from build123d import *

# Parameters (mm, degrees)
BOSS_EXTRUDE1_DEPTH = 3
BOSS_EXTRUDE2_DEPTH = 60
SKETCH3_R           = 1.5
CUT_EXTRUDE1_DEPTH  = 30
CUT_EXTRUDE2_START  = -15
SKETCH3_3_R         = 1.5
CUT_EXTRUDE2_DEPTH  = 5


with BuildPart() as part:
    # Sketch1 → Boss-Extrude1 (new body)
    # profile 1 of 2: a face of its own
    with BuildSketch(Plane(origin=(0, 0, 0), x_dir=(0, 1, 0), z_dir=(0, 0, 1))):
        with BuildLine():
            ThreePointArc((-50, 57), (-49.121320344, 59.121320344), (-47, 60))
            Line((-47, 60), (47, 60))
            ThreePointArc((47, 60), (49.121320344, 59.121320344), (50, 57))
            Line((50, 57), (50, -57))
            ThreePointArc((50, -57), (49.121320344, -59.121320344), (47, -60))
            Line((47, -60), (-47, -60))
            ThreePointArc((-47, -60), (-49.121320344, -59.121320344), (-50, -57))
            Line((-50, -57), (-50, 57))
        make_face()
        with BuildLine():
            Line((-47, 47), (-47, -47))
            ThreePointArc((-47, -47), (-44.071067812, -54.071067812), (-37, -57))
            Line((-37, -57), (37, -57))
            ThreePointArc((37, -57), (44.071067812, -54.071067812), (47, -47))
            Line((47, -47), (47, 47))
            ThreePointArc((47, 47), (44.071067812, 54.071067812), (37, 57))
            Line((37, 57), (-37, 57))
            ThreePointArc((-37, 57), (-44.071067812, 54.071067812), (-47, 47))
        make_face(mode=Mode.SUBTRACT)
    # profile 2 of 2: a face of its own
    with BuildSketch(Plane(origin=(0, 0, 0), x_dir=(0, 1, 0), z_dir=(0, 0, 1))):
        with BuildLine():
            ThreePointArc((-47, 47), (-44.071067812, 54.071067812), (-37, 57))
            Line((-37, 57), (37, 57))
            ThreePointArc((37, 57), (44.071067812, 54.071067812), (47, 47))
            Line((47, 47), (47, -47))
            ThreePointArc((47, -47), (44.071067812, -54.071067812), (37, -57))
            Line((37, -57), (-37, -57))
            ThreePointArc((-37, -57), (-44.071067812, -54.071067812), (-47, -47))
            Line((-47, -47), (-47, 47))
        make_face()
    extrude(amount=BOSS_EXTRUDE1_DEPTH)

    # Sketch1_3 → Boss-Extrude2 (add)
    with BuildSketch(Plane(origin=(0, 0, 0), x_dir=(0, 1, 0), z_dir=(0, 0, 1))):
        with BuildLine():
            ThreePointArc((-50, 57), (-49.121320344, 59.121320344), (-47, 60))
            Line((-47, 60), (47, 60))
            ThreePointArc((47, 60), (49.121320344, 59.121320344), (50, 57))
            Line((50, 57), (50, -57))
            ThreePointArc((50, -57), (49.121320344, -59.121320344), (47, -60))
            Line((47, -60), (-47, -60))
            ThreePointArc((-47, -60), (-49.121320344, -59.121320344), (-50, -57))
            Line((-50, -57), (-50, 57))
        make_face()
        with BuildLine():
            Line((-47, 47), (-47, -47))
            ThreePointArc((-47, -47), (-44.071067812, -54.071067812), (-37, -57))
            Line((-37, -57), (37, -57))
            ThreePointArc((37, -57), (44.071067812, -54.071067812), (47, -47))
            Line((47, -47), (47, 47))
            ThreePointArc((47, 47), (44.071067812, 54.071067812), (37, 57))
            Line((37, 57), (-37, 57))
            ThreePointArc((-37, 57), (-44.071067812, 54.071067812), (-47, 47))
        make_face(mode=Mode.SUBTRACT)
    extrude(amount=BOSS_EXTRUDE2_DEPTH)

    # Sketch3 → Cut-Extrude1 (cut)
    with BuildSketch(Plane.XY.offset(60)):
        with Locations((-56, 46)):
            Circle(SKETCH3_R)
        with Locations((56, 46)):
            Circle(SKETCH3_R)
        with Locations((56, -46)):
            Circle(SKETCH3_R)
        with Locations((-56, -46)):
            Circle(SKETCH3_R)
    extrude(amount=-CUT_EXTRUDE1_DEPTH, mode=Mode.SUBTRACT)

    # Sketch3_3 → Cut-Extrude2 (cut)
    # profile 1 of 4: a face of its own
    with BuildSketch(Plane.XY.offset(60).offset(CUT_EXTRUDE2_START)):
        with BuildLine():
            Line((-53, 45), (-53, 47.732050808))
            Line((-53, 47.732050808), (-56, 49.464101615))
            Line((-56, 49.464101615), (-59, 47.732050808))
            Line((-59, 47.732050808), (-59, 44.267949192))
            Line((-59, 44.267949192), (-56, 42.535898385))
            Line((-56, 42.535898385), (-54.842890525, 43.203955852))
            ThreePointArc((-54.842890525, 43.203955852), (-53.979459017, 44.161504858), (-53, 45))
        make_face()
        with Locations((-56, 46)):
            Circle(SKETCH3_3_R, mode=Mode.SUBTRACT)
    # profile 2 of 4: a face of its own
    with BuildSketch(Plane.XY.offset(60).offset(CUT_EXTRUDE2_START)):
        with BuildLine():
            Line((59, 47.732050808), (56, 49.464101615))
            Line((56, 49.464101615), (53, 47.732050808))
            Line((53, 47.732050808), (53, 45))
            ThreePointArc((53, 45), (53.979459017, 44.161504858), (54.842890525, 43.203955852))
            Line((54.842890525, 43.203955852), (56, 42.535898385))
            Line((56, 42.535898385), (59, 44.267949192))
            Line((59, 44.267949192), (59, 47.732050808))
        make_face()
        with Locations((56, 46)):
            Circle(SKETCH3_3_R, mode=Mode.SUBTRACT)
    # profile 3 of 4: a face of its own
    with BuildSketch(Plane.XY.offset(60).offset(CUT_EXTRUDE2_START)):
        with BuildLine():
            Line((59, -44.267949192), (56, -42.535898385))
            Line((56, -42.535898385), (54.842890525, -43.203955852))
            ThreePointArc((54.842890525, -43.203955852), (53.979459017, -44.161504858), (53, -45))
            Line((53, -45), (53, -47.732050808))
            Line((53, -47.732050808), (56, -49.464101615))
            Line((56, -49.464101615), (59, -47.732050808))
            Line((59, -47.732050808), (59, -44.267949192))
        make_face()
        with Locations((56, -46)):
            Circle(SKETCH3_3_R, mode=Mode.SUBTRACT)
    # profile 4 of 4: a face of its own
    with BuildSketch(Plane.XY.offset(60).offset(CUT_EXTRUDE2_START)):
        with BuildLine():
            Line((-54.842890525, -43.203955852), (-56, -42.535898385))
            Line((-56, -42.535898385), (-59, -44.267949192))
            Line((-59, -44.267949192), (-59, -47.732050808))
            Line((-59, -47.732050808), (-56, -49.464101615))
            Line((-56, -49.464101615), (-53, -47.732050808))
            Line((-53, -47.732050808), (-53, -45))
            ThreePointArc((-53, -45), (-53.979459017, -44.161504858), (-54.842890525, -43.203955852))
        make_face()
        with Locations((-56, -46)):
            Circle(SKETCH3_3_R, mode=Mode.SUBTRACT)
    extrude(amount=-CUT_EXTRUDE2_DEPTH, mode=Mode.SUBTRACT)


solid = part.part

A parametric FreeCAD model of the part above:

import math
import FreeCAD as App
import Part
import Sketcher
from FreeCAD import Vector
Q = App.Units.Quantity

doc = App.newDocument("Part")
params = doc.addObject("Spreadsheet::Sheet", "Params")
for row, (alias, value) in enumerate([
    ("sketch1_radius", "3 mm"),
    ("sketch1_width", "114 mm"),
    ("sketch1_height", "94 mm"),
    ("pad1_length", "3 mm"),
    ("sketch2_radius", "3 mm"),
    ("sketch2_radius2", "10 mm"),
    ("sketch2_width", "114 mm"),
    ("pad2_length", "60 mm"),
    ("sketch3_diameter", "3 mm"),
    ("pocket1_length", "30 mm"),
    ("sketch4_diameter", "3 mm"),
    ("sketch4_radius", "10 mm"),
    ("pocket2_length", "5 mm"),
], start=1):
    params.set(f"A{row}", alias)
    params.set(f"B{row}", "=" + value)
    params.setAlias(f"B{row}", alias)

body = doc.addObject("PartDesign::Body", "Body")

sketch1 = body.newObject("Sketcher::SketchObject", "Sketch")
sketch1.AttachmentSupport = (doc.getObject("XY_Plane"), [""])
sketch1.MapMode = "FlatFace"
sketch1.addGeometry(Part.ArcOfCircle(Part.Circle(Vector(-57, -47, 0), Vector(0, 0, 1), 3), math.radians(180), math.radians(270)), False)
sketch1.addGeometry(Part.LineSegment(Vector(-57, -50, 0), Vector(57, -50, 0)), False)
sketch1.addGeometry(Part.ArcOfCircle(Part.Circle(Vector(57, -47, 0), Vector(0, 0, 1), 3), math.radians(-90), math.radians(0)), False)
sketch1.addGeometry(Part.LineSegment(Vector(60, -47, 0), Vector(60, 47, 0)), False)
sketch1.addGeometry(Part.ArcOfCircle(Part.Circle(Vector(57, 47, 0), Vector(0, 0, 1), 3), math.radians(0), math.radians(90)), False)
sketch1.addGeometry(Part.LineSegment(Vector(57, 50, 0), Vector(-57, 50, 0)), False)
sketch1.addGeometry(Part.ArcOfCircle(Part.Circle(Vector(-57, 47, 0), Vector(0, 0, 1), 3), math.radians(90), math.radians(180)), False)
sketch1.addGeometry(Part.LineSegment(Vector(-60, 47, 0), Vector(-60, -47, 0)), False)
sketch1.addConstraint(Sketcher.Constraint("Tangent", 0, 2, 1, 1))
sketch1.addConstraint(Sketcher.Constraint("Tangent", 1, 2, 2, 1))
sketch1.addConstraint(Sketcher.Constraint("Tangent", 2, 2, 3, 1))
sketch1.addConstraint(Sketcher.Constraint("Tangent", 3, 2, 4, 1))
sketch1.addConstraint(Sketcher.Constraint("Tangent", 4, 2, 5, 1))
sketch1.addConstraint(Sketcher.Constraint("Tangent", 5, 2, 6, 1))
sketch1.addConstraint(Sketcher.Constraint("Tangent", 6, 2, 7, 1))
sketch1.addConstraint(Sketcher.Constraint("Tangent", 7, 2, 0, 1))
sketch1.addConstraint(Sketcher.Constraint("Horizontal", 1))
sketch1.addConstraint(Sketcher.Constraint("Vertical", 3))
sketch1.addConstraint(Sketcher.Constraint("Horizontal", 5))
sketch1.addConstraint(Sketcher.Constraint("Vertical", 7))
sketch1.addConstraint(Sketcher.Constraint("Equal", 0, 2))
sketch1.addConstraint(Sketcher.Constraint("Equal", 2, 4))
sketch1.addConstraint(Sketcher.Constraint("Equal", 4, 6))
sketch1.addConstraint(Sketcher.Constraint("Symmetric", 0, 3, 4, 3, -1, 1))
sketch1.addConstraint(Sketcher.Constraint("Radius", 0, Q("3 mm")))
sketch1.addConstraint(Sketcher.Constraint("DistanceX", 1, 1, 1, 2, Q("114 mm")))
sketch1.addConstraint(Sketcher.Constraint("DistanceY", 3, 1, 3, 2, Q("94 mm")))
sketch1.setExpression("Constraints[16]", "Params.sketch1_radius")
sketch1.setExpression("Constraints[17]", "Params.sketch1_width")
sketch1.setExpression("Constraints[18]", "Params.sketch1_height")
pad1 = body.newObject("PartDesign::Pad", "Pad")
pad1.Profile = sketch1
pad1.setExpression("Length", "Params.pad1_length")

sketch2 = body.newObject("Sketcher::SketchObject", "Sketch001")
sketch2.AttachmentSupport = (doc.getObject("XY_Plane"), [""])
sketch2.MapMode = "FlatFace"
sketch2.addGeometry(Part.ArcOfCircle(Part.Circle(Vector(-57, -47, 0), Vector(0, 0, 1), 3), math.radians(180), math.radians(270)), False)
sketch2.addGeometry(Part.LineSegment(Vector(-57, -50, 0), Vector(57, -50, 0)), False)
sketch2.addGeometry(Part.ArcOfCircle(Part.Circle(Vector(57, -47, 0), Vector(0, 0, 1), 3), math.radians(-90), math.radians(0)), False)
sketch2.addGeometry(Part.LineSegment(Vector(60, -47, 0), Vector(60, 47, 0)), False)
sketch2.addGeometry(Part.ArcOfCircle(Part.Circle(Vector(57, 47, 0), Vector(0, 0, 1), 3), math.radians(0), math.radians(90)), False)
sketch2.addGeometry(Part.LineSegment(Vector(57, 50, 0), Vector(-57, 50, 0)), False)
sketch2.addGeometry(Part.ArcOfCircle(Part.Circle(Vector(-57, 47, 0), Vector(0, 0, 1), 3), math.radians(90), math.radians(180)), False)
sketch2.addGeometry(Part.LineSegment(Vector(-60, 47, 0), Vector(-60, -47, 0)), False)
sketch2.addGeometry(Part.ArcOfCircle(Part.Circle(Vector(-47, -37, 0), Vector(0, 0, 1), 10), math.radians(180), math.radians(270)), False)
sketch2.addGeometry(Part.LineSegment(Vector(-57, -37, 0), Vector(-57, 37, 0)), False)
sketch2.addGeometry(Part.ArcOfCircle(Part.Circle(Vector(-47, 37, 0), Vector(0, 0, 1), 10), math.radians(90), math.radians(180)), False)
sketch2.addGeometry(Part.LineSegment(Vector(-47, 47, 0), Vector(47, 47, 0)), False)
sketch2.addGeometry(Part.ArcOfCircle(Part.Circle(Vector(47, 37, 0), Vector(0, 0, 1), 10), math.radians(0), math.radians(90)), False)
sketch2.addGeometry(Part.LineSegment(Vector(57, 37, 0), Vector(57, -37, 0)), False)
sketch2.addGeometry(Part.ArcOfCircle(Part.Circle(Vector(47, -37, 0), Vector(0, 0, 1), 10), math.radians(-90), math.radians(0)), False)
sketch2.addGeometry(Part.LineSegment(Vector(47, -47, 0), Vector(-47, -47, 0)), False)
sketch2.addConstraint(Sketcher.Constraint("Tangent", 0, 2, 1, 1))
sketch2.addConstraint(Sketcher.Constraint("Tangent", 1, 2, 2, 1))
sketch2.addConstraint(Sketcher.Constraint("Tangent", 2, 2, 3, 1))
sketch2.addConstraint(Sketcher.Constraint("Tangent", 3, 2, 4, 1))
sketch2.addConstraint(Sketcher.Constraint("Tangent", 4, 2, 5, 1))
sketch2.addConstraint(Sketcher.Constraint("Tangent", 5, 2, 6, 1))
sketch2.addConstraint(Sketcher.Constraint("Tangent", 6, 2, 7, 1))
sketch2.addConstraint(Sketcher.Constraint("Tangent", 7, 2, 0, 1))
sketch2.addConstraint(Sketcher.Constraint("Tangent", 8, 1, 9, 1))
sketch2.addConstraint(Sketcher.Constraint("Tangent", 9, 2, 10, 2))
sketch2.addConstraint(Sketcher.Constraint("Tangent", 10, 1, 11, 1))
sketch2.addConstraint(Sketcher.Constraint("Tangent", 11, 2, 12, 2))
sketch2.addConstraint(Sketcher.Constraint("Tangent", 12, 1, 13, 1))
sketch2.addConstraint(Sketcher.Constraint("Tangent", 13, 2, 14, 2))
sketch2.addConstraint(Sketcher.Constraint("Tangent", 14, 1, 15, 1))
sketch2.addConstraint(Sketcher.Constraint("Tangent", 15, 2, 8, 2))
sketch2.addConstraint(Sketcher.Constraint("Horizontal", 1))
sketch2.addConstraint(Sketcher.Constraint("Vertical", 3))
sketch2.addConstraint(Sketcher.Constraint("Horizontal", 5))
sketch2.addConstraint(Sketcher.Constraint("Vertical", 7))
sketch2.addConstraint(Sketcher.Constraint("Vertical", 9))
sketch2.addConstraint(Sketcher.Constraint("Horizontal", 11))
sketch2.addConstraint(Sketcher.Constraint("Vertical", 13))
sketch2.addConstraint(Sketcher.Constraint("Horizontal", 15))
sketch2.addConstraint(Sketcher.Constraint("Equal", 0, 2))
sketch2.addConstraint(Sketcher.Constraint("Equal", 2, 4))
sketch2.addConstraint(Sketcher.Constraint("Equal", 4, 6))
sketch2.addConstraint(Sketcher.Constraint("Equal", 8, 10))
sketch2.addConstraint(Sketcher.Constraint("Equal", 10, 12))
sketch2.addConstraint(Sketcher.Constraint("Equal", 12, 14))
sketch2.addConstraint(Sketcher.Constraint("Symmetric", 0, 3, 4, 3, -1, 1))
sketch2.addConstraint(Sketcher.Constraint("Symmetric", 8, 3, 12, 3, -1, 1))
sketch2.addConstraint(Sketcher.Constraint("Horizontal", 6, 2, 10, 1))
sketch2.addConstraint(Sketcher.Constraint("Vertical", 5, 2, 8, 1))
sketch2.addConstraint(Sketcher.Constraint("Equal", 15, 3))
sketch2.addConstraint(Sketcher.Constraint("Radius", 0, Q("3 mm")))
sketch2.addConstraint(Sketcher.Constraint("Radius", 8, Q("10 mm")))
sketch2.addConstraint(Sketcher.Constraint("DistanceX", 1, 1, 1, 2, Q("114 mm")))
sketch2.setExpression("Constraints[35]", "Params.sketch2_radius")
sketch2.setExpression("Constraints[36]", "Params.sketch2_radius2")
sketch2.setExpression("Constraints[37]", "Params.sketch2_width")
pad2 = body.newObject("PartDesign::Pad", "Pad001")
pad2.Profile = sketch2
pad2.setExpression("Length", "Params.pad2_length")

sketch3 = body.newObject("Sketcher::SketchObject", "Sketch002")
sketch3.AttachmentSupport = (doc.getObject("XY_Plane"), [""])
sketch3.MapMode = "FlatFace"
sketch3.AttachmentOffset = App.Placement(Vector(0, 0, 60), App.Rotation())
sketch3.addGeometry(Part.Circle(Vector(-56, 46, 0), Vector(0, 0, 1), 1.5), False)
sketch3.addGeometry(Part.Circle(Vector(56, 46, 0), Vector(0, 0, 1), 1.5), False)
sketch3.addGeometry(Part.Circle(Vector(56, -46, 0), Vector(0, 0, 1), 1.5), False)
sketch3.addGeometry(Part.Circle(Vector(-56, -46, 0), Vector(0, 0, 1), 1.5), False)
sketch3.addConstraint(Sketcher.Constraint("Equal", 0, 1))
sketch3.addConstraint(Sketcher.Constraint("Equal", 1, 2))
sketch3.addConstraint(Sketcher.Constraint("Equal", 2, 3))
sketch3.addConstraint(Sketcher.Constraint("Symmetric", 0, 3, 2, 3, -1, 1))
sketch3.addConstraint(Sketcher.Constraint("Symmetric", 1, 3, 3, 3, -1, 1))
sketch3.addConstraint(Sketcher.Constraint("Symmetric", 0, 3, 1, 3, -2))
sketch3.addConstraint(Sketcher.Constraint("Diameter", 0, Q("3 mm")))
sketch3.addConstraint(Sketcher.Constraint("DistanceX", 0, 3, -1, 1, Q("56 mm")))
sketch3.addConstraint(Sketcher.Constraint("DistanceY", -1, 1, 0, 3, Q("46 mm")))
sketch3.setExpression("Constraints[6]", "Params.sketch3_diameter")
pocket1 = body.newObject("PartDesign::Pocket", "Pocket")
pocket1.Profile = sketch3
pocket1.setExpression("Length", "Params.pocket1_length")

sketch4 = body.newObject("Sketcher::SketchObject", "Sketch003")
sketch4.AttachmentSupport = (doc.getObject("XY_Plane"), [""])
sketch4.MapMode = "FlatFace"
sketch4.AttachmentOffset = App.Placement(Vector(0, 0, 45), App.Rotation())
sketch4.addGeometry(Part.LineSegment(Vector(-53, 45, 0), Vector(-53, 47.7, 0)), False)
sketch4.addGeometry(Part.LineSegment(Vector(-53, 47.7, 0), Vector(-56, 49.5, 0)), False)
sketch4.addGeometry(Part.LineSegment(Vector(-56, 49.5, 0), Vector(-59, 47.7, 0)), False)
sketch4.addGeometry(Part.LineSegment(Vector(-59, 47.7, 0), Vector(-59, 44.3, 0)), False)
sketch4.addGeometry(Part.LineSegment(Vector(-59, 44.3, 0), Vector(-56, 42.5, 0)), False)
sketch4.addGeometry(Part.LineSegment(Vector(-56, 42.5, 0), Vector(-54.8, 43.2, 0)), False)
sketch4.addGeometry(Part.ArcOfCircle(Part.Circle(Vector(-47, 37, 0), Vector(0, 0, 1), 10), math.radians(126.87), math.radians(141.65)), False)
sketch4.addGeometry(Part.Circle(Vector(-56, 46, 0), Vector(0, 0, 1), 1.5), False)
sketch4.addGeometry(Part.LineSegment(Vector(59, 47.7, 0), Vector(56, 49.5, 0)), False)
sketch4.addGeometry(Part.LineSegment(Vector(56, 49.5, 0), Vector(53, 47.7, 0)), False)
sketch4.addGeometry(Part.LineSegment(Vector(53, 47.7, 0), Vector(53, 45, 0)), False)
sketch4.addGeometry(Part.ArcOfCircle(Part.Circle(Vector(47, 37, 0), Vector(0, 0, 1), 10), math.radians(38.35), math.radians(53.13)), False)
sketch4.addGeometry(Part.LineSegment(Vector(54.8, 43.2, 0), Vector(56, 42.5, 0)), False)
sketch4.addGeometry(Part.LineSegment(Vector(56, 42.5, 0), Vector(59, 44.3, 0)), False)
sketch4.addGeometry(Part.LineSegment(Vector(59, 44.3, 0), Vector(59, 47.7, 0)), False)
sketch4.addGeometry(Part.Circle(Vector(56, 46, 0), Vector(0, 0, 1), 1.5), False)
sketch4.addGeometry(Part.LineSegment(Vector(59, -44.3, 0), Vector(56, -42.5, 0)), False)
sketch4.addGeometry(Part.LineSegment(Vector(56, -42.5, 0), Vector(54.8, -43.2, 0)), False)
sketch4.addGeometry(Part.ArcOfCircle(Part.Circle(Vector(47, -37, 0), Vector(0, 0, 1), 10), math.radians(-53.13), math.radians(-38.35)), False)
sketch4.addGeometry(Part.LineSegment(Vector(53, -45, 0), Vector(53, -47.7, 0)), False)
sketch4.addGeometry(Part.LineSegment(Vector(53, -47.7, 0), Vector(56, -49.5, 0)), False)
sketch4.addGeometry(Part.LineSegment(Vector(56, -49.5, 0), Vector(59, -47.7, 0)), False)
sketch4.addGeometry(Part.LineSegment(Vector(59, -47.7, 0), Vector(59, -44.3, 0)), False)
sketch4.addGeometry(Part.Circle(Vector(56, -46, 0), Vector(0, 0, 1), 1.5), False)
sketch4.addGeometry(Part.LineSegment(Vector(-54.8, -43.2, 0), Vector(-56, -42.5, 0)), False)
sketch4.addGeometry(Part.LineSegment(Vector(-56, -42.5, 0), Vector(-59, -44.3, 0)), False)
sketch4.addGeometry(Part.LineSegment(Vector(-59, -44.3, 0), Vector(-59, -47.7, 0)), False)
sketch4.addGeometry(Part.LineSegment(Vector(-59, -47.7, 0), Vector(-56, -49.5, 0)), False)
sketch4.addGeometry(Part.LineSegment(Vector(-56, -49.5, 0), Vector(-53, -47.7, 0)), False)
sketch4.addGeometry(Part.LineSegment(Vector(-53, -47.7, 0), Vector(-53, -45, 0)), False)
sketch4.addGeometry(Part.ArcOfCircle(Part.Circle(Vector(-47, -37, 0), Vector(0, 0, 1), 10), math.radians(-141.65), math.radians(-126.87)), False)
sketch4.addGeometry(Part.Circle(Vector(-56, -46, 0), Vector(0, 0, 1), 1.5), False)
sketch4.addConstraint(Sketcher.Constraint("Coincident", 0, 2, 1, 1))
sketch4.addConstraint(Sketcher.Constraint("Coincident", 1, 2, 2, 1))
sketch4.addConstraint(Sketcher.Constraint("Coincident", 2, 2, 3, 1))
sketch4.addConstraint(Sketcher.Constraint("Coincident", 3, 2, 4, 1))
sketch4.addConstraint(Sketcher.Constraint("Coincident", 4, 2, 5, 1))
sketch4.addConstraint(Sketcher.Constraint("Coincident", 5, 2, 6, 2))
sketch4.addConstraint(Sketcher.Constraint("Coincident", 6, 1, 0, 1))
sketch4.addConstraint(Sketcher.Constraint("Coincident", 8, 2, 9, 1))
sketch4.addConstraint(Sketcher.Constraint("Coincident", 9, 2, 10, 1))
sketch4.addConstraint(Sketcher.Constraint("Coincident", 10, 2, 11, 2))
sketch4.addConstraint(Sketcher.Constraint("Coincident", 11, 1, 12, 1))
sketch4.addConstraint(Sketcher.Constraint("Coincident", 12, 2, 13, 1))
sketch4.addConstraint(Sketcher.Constraint("Coincident", 13, 2, 14, 1))
sketch4.addConstraint(Sketcher.Constraint("Coincident", 14, 2, 8, 1))
sketch4.addConstraint(Sketcher.Constraint("Coincident", 16, 2, 17, 1))
sketch4.addConstraint(Sketcher.Constraint("Coincident", 17, 2, 18, 2))
sketch4.addConstraint(Sketcher.Constraint("Coincident", 18, 1, 19, 1))
sketch4.addConstraint(Sketcher.Constraint("Coincident", 19, 2, 20, 1))
sketch4.addConstraint(Sketcher.Constraint("Coincident", 20, 2, 21, 1))
sketch4.addConstraint(Sketcher.Constraint("Coincident", 21, 2, 22, 1))
sketch4.addConstraint(Sketcher.Constraint("Coincident", 22, 2, 16, 1))
sketch4.addConstraint(Sketcher.Constraint("Coincident", 24, 2, 25, 1))
sketch4.addConstraint(Sketcher.Constraint("Coincident", 25, 2, 26, 1))
sketch4.addConstraint(Sketcher.Constraint("Coincident", 26, 2, 27, 1))
sketch4.addConstraint(Sketcher.Constraint("Coincident", 27, 2, 28, 1))
sketch4.addConstraint(Sketcher.Constraint("Coincident", 28, 2, 29, 1))
sketch4.addConstraint(Sketcher.Constraint("Coincident", 29, 2, 30, 2))
sketch4.addConstraint(Sketcher.Constraint("Coincident", 30, 1, 24, 1))
sketch4.addConstraint(Sketcher.Constraint("Vertical", 0))
sketch4.addConstraint(Sketcher.Constraint("Vertical", 3))
sketch4.addConstraint(Sketcher.Constraint("Vertical", 10))
sketch4.addConstraint(Sketcher.Constraint("Vertical", 14))
sketch4.addConstraint(Sketcher.Constraint("Vertical", 19))
sketch4.addConstraint(Sketcher.Constraint("Vertical", 22))
sketch4.addConstraint(Sketcher.Constraint("Vertical", 26))
sketch4.addConstraint(Sketcher.Constraint("Vertical", 29))
sketch4.addConstraint(Sketcher.Constraint("Equal", 6, 11))
sketch4.addConstraint(Sketcher.Constraint("Equal", 7, 15))
sketch4.addConstraint(Sketcher.Constraint("Equal", 11, 18))
sketch4.addConstraint(Sketcher.Constraint("Equal", 15, 23))
sketch4.addConstraint(Sketcher.Constraint("Equal", 18, 30))
sketch4.addConstraint(Sketcher.Constraint("Equal", 23, 31))
sketch4.addConstraint(Sketcher.Constraint("Symmetric", 6, 3, 18, 3, -1, 1))
sketch4.addConstraint(Sketcher.Constraint("Symmetric", 7, 3, 23, 3, -1, 1))
sketch4.addConstraint(Sketcher.Constraint("Symmetric", 11, 3, 30, 3, -1, 1))
sketch4.addConstraint(Sketcher.Constraint("Symmetric", 15, 3, 31, 3, -1, 1))
sketch4.addConstraint(Sketcher.Constraint("Symmetric", 4, 2, 16, 2, -1, 1))
sketch4.addConstraint(Sketcher.Constraint("Symmetric", 0, 2, 19, 2, -1, 1))
sketch4.addConstraint(Sketcher.Constraint("Symmetric", 1, 2, 20, 2, -1, 1))
sketch4.addConstraint(Sketcher.Constraint("Symmetric", 2, 2, 21, 2, -1, 1))
sketch4.addConstraint(Sketcher.Constraint("Symmetric", 12, 2, 24, 2, -1, 1))
sketch4.addConstraint(Sketcher.Constraint("Symmetric", 13, 2, 25, 2, -1, 1))
sketch4.addConstraint(Sketcher.Constraint("Symmetric", 8, 2, 27, 2, -1, 1))
sketch4.addConstraint(Sketcher.Constraint("Symmetric", 9, 2, 28, 2, -1, 1))
sketch4.addConstraint(Sketcher.Constraint("Symmetric", 6, 3, 11, 3, -2))
sketch4.addConstraint(Sketcher.Constraint("Symmetric", 7, 3, 15, 3, -2))
sketch4.addConstraint(Sketcher.Constraint("Symmetric", 1, 2, 8, 2, -2))
sketch4.addConstraint(Sketcher.Constraint("Symmetric", 0, 2, 9, 2, -2))
sketch4.addConstraint(Sketcher.Constraint("Symmetric", 4, 2, 12, 2, -2))
sketch4.addConstraint(Sketcher.Constraint("Symmetric", 3, 2, 13, 2, -2))
sketch4.addConstraint(Sketcher.Constraint("Parallel", 1, 4))
sketch4.addConstraint(Sketcher.Constraint("Parallel", 2, 5))
sketch4.addConstraint(Sketcher.Constraint("Parallel", 4, 8))
sketch4.addConstraint(Sketcher.Constraint("Parallel", 5, 9))
sketch4.addConstraint(Sketcher.Constraint("Parallel", 8, 12))
sketch4.addConstraint(Sketcher.Constraint("Parallel", 12, 16))
sketch4.addConstraint(Sketcher.Constraint("Parallel", 13, 17))
sketch4.addConstraint(Sketcher.Constraint("Parallel", 20, 24))
sketch4.addConstraint(Sketcher.Constraint("Parallel", 24, 27))
sketch4.addConstraint(Sketcher.Constraint("Horizontal", 0, 2, 2, 2))
sketch4.addConstraint(Sketcher.Constraint("Vertical", 31, 3, 1, 2))
sketch4.addConstraint(Sketcher.Constraint("Vertical", 1, 2, 4, 2))
sketch4.addConstraint(Sketcher.Constraint("Diameter", 7, Q("3 mm")))
sketch4.addConstraint(Sketcher.Constraint("Radius", 6, Q("10 mm")))
sketch4.addConstraint(Sketcher.Constraint("Angle", 1, Q("150 deg")))
sketch4.addConstraint(Sketcher.Constraint("DistanceX", 6, 3, -1, 1, Q("47 mm")))
sketch4.addConstraint(Sketcher.Constraint("DistanceY", -1, 1, 6, 3, Q("37 mm")))
sketch4.addConstraint(Sketcher.Constraint("DistanceX", 7, 3, -1, 1, Q("56 mm")))
sketch4.addConstraint(Sketcher.Constraint("DistanceY", -1, 1, 7, 3, Q("46 mm")))
sketch4.addConstraint(Sketcher.Constraint("DistanceX", 0, 2, -1, 1, Q("53 mm")))
sketch4.addConstraint(Sketcher.Constraint("DistanceY", 3, 2, 3, 1, Q("3.464102 mm")))
sketch4.addConstraint(Sketcher.Constraint("DistanceY", 0, 1, 0, 2, Q("2.732051 mm")))
sketch4.setExpression("Constraints[72]", "Params.sketch4_diameter")
sketch4.setExpression("Constraints[73]", "Params.sketch4_radius")
pocket2 = body.newObject("PartDesign::Pocket", "Pocket001")
pocket2.Profile = sketch4
pocket2.setExpression("Length", "Params.pocket2_length")

doc.recompute()
